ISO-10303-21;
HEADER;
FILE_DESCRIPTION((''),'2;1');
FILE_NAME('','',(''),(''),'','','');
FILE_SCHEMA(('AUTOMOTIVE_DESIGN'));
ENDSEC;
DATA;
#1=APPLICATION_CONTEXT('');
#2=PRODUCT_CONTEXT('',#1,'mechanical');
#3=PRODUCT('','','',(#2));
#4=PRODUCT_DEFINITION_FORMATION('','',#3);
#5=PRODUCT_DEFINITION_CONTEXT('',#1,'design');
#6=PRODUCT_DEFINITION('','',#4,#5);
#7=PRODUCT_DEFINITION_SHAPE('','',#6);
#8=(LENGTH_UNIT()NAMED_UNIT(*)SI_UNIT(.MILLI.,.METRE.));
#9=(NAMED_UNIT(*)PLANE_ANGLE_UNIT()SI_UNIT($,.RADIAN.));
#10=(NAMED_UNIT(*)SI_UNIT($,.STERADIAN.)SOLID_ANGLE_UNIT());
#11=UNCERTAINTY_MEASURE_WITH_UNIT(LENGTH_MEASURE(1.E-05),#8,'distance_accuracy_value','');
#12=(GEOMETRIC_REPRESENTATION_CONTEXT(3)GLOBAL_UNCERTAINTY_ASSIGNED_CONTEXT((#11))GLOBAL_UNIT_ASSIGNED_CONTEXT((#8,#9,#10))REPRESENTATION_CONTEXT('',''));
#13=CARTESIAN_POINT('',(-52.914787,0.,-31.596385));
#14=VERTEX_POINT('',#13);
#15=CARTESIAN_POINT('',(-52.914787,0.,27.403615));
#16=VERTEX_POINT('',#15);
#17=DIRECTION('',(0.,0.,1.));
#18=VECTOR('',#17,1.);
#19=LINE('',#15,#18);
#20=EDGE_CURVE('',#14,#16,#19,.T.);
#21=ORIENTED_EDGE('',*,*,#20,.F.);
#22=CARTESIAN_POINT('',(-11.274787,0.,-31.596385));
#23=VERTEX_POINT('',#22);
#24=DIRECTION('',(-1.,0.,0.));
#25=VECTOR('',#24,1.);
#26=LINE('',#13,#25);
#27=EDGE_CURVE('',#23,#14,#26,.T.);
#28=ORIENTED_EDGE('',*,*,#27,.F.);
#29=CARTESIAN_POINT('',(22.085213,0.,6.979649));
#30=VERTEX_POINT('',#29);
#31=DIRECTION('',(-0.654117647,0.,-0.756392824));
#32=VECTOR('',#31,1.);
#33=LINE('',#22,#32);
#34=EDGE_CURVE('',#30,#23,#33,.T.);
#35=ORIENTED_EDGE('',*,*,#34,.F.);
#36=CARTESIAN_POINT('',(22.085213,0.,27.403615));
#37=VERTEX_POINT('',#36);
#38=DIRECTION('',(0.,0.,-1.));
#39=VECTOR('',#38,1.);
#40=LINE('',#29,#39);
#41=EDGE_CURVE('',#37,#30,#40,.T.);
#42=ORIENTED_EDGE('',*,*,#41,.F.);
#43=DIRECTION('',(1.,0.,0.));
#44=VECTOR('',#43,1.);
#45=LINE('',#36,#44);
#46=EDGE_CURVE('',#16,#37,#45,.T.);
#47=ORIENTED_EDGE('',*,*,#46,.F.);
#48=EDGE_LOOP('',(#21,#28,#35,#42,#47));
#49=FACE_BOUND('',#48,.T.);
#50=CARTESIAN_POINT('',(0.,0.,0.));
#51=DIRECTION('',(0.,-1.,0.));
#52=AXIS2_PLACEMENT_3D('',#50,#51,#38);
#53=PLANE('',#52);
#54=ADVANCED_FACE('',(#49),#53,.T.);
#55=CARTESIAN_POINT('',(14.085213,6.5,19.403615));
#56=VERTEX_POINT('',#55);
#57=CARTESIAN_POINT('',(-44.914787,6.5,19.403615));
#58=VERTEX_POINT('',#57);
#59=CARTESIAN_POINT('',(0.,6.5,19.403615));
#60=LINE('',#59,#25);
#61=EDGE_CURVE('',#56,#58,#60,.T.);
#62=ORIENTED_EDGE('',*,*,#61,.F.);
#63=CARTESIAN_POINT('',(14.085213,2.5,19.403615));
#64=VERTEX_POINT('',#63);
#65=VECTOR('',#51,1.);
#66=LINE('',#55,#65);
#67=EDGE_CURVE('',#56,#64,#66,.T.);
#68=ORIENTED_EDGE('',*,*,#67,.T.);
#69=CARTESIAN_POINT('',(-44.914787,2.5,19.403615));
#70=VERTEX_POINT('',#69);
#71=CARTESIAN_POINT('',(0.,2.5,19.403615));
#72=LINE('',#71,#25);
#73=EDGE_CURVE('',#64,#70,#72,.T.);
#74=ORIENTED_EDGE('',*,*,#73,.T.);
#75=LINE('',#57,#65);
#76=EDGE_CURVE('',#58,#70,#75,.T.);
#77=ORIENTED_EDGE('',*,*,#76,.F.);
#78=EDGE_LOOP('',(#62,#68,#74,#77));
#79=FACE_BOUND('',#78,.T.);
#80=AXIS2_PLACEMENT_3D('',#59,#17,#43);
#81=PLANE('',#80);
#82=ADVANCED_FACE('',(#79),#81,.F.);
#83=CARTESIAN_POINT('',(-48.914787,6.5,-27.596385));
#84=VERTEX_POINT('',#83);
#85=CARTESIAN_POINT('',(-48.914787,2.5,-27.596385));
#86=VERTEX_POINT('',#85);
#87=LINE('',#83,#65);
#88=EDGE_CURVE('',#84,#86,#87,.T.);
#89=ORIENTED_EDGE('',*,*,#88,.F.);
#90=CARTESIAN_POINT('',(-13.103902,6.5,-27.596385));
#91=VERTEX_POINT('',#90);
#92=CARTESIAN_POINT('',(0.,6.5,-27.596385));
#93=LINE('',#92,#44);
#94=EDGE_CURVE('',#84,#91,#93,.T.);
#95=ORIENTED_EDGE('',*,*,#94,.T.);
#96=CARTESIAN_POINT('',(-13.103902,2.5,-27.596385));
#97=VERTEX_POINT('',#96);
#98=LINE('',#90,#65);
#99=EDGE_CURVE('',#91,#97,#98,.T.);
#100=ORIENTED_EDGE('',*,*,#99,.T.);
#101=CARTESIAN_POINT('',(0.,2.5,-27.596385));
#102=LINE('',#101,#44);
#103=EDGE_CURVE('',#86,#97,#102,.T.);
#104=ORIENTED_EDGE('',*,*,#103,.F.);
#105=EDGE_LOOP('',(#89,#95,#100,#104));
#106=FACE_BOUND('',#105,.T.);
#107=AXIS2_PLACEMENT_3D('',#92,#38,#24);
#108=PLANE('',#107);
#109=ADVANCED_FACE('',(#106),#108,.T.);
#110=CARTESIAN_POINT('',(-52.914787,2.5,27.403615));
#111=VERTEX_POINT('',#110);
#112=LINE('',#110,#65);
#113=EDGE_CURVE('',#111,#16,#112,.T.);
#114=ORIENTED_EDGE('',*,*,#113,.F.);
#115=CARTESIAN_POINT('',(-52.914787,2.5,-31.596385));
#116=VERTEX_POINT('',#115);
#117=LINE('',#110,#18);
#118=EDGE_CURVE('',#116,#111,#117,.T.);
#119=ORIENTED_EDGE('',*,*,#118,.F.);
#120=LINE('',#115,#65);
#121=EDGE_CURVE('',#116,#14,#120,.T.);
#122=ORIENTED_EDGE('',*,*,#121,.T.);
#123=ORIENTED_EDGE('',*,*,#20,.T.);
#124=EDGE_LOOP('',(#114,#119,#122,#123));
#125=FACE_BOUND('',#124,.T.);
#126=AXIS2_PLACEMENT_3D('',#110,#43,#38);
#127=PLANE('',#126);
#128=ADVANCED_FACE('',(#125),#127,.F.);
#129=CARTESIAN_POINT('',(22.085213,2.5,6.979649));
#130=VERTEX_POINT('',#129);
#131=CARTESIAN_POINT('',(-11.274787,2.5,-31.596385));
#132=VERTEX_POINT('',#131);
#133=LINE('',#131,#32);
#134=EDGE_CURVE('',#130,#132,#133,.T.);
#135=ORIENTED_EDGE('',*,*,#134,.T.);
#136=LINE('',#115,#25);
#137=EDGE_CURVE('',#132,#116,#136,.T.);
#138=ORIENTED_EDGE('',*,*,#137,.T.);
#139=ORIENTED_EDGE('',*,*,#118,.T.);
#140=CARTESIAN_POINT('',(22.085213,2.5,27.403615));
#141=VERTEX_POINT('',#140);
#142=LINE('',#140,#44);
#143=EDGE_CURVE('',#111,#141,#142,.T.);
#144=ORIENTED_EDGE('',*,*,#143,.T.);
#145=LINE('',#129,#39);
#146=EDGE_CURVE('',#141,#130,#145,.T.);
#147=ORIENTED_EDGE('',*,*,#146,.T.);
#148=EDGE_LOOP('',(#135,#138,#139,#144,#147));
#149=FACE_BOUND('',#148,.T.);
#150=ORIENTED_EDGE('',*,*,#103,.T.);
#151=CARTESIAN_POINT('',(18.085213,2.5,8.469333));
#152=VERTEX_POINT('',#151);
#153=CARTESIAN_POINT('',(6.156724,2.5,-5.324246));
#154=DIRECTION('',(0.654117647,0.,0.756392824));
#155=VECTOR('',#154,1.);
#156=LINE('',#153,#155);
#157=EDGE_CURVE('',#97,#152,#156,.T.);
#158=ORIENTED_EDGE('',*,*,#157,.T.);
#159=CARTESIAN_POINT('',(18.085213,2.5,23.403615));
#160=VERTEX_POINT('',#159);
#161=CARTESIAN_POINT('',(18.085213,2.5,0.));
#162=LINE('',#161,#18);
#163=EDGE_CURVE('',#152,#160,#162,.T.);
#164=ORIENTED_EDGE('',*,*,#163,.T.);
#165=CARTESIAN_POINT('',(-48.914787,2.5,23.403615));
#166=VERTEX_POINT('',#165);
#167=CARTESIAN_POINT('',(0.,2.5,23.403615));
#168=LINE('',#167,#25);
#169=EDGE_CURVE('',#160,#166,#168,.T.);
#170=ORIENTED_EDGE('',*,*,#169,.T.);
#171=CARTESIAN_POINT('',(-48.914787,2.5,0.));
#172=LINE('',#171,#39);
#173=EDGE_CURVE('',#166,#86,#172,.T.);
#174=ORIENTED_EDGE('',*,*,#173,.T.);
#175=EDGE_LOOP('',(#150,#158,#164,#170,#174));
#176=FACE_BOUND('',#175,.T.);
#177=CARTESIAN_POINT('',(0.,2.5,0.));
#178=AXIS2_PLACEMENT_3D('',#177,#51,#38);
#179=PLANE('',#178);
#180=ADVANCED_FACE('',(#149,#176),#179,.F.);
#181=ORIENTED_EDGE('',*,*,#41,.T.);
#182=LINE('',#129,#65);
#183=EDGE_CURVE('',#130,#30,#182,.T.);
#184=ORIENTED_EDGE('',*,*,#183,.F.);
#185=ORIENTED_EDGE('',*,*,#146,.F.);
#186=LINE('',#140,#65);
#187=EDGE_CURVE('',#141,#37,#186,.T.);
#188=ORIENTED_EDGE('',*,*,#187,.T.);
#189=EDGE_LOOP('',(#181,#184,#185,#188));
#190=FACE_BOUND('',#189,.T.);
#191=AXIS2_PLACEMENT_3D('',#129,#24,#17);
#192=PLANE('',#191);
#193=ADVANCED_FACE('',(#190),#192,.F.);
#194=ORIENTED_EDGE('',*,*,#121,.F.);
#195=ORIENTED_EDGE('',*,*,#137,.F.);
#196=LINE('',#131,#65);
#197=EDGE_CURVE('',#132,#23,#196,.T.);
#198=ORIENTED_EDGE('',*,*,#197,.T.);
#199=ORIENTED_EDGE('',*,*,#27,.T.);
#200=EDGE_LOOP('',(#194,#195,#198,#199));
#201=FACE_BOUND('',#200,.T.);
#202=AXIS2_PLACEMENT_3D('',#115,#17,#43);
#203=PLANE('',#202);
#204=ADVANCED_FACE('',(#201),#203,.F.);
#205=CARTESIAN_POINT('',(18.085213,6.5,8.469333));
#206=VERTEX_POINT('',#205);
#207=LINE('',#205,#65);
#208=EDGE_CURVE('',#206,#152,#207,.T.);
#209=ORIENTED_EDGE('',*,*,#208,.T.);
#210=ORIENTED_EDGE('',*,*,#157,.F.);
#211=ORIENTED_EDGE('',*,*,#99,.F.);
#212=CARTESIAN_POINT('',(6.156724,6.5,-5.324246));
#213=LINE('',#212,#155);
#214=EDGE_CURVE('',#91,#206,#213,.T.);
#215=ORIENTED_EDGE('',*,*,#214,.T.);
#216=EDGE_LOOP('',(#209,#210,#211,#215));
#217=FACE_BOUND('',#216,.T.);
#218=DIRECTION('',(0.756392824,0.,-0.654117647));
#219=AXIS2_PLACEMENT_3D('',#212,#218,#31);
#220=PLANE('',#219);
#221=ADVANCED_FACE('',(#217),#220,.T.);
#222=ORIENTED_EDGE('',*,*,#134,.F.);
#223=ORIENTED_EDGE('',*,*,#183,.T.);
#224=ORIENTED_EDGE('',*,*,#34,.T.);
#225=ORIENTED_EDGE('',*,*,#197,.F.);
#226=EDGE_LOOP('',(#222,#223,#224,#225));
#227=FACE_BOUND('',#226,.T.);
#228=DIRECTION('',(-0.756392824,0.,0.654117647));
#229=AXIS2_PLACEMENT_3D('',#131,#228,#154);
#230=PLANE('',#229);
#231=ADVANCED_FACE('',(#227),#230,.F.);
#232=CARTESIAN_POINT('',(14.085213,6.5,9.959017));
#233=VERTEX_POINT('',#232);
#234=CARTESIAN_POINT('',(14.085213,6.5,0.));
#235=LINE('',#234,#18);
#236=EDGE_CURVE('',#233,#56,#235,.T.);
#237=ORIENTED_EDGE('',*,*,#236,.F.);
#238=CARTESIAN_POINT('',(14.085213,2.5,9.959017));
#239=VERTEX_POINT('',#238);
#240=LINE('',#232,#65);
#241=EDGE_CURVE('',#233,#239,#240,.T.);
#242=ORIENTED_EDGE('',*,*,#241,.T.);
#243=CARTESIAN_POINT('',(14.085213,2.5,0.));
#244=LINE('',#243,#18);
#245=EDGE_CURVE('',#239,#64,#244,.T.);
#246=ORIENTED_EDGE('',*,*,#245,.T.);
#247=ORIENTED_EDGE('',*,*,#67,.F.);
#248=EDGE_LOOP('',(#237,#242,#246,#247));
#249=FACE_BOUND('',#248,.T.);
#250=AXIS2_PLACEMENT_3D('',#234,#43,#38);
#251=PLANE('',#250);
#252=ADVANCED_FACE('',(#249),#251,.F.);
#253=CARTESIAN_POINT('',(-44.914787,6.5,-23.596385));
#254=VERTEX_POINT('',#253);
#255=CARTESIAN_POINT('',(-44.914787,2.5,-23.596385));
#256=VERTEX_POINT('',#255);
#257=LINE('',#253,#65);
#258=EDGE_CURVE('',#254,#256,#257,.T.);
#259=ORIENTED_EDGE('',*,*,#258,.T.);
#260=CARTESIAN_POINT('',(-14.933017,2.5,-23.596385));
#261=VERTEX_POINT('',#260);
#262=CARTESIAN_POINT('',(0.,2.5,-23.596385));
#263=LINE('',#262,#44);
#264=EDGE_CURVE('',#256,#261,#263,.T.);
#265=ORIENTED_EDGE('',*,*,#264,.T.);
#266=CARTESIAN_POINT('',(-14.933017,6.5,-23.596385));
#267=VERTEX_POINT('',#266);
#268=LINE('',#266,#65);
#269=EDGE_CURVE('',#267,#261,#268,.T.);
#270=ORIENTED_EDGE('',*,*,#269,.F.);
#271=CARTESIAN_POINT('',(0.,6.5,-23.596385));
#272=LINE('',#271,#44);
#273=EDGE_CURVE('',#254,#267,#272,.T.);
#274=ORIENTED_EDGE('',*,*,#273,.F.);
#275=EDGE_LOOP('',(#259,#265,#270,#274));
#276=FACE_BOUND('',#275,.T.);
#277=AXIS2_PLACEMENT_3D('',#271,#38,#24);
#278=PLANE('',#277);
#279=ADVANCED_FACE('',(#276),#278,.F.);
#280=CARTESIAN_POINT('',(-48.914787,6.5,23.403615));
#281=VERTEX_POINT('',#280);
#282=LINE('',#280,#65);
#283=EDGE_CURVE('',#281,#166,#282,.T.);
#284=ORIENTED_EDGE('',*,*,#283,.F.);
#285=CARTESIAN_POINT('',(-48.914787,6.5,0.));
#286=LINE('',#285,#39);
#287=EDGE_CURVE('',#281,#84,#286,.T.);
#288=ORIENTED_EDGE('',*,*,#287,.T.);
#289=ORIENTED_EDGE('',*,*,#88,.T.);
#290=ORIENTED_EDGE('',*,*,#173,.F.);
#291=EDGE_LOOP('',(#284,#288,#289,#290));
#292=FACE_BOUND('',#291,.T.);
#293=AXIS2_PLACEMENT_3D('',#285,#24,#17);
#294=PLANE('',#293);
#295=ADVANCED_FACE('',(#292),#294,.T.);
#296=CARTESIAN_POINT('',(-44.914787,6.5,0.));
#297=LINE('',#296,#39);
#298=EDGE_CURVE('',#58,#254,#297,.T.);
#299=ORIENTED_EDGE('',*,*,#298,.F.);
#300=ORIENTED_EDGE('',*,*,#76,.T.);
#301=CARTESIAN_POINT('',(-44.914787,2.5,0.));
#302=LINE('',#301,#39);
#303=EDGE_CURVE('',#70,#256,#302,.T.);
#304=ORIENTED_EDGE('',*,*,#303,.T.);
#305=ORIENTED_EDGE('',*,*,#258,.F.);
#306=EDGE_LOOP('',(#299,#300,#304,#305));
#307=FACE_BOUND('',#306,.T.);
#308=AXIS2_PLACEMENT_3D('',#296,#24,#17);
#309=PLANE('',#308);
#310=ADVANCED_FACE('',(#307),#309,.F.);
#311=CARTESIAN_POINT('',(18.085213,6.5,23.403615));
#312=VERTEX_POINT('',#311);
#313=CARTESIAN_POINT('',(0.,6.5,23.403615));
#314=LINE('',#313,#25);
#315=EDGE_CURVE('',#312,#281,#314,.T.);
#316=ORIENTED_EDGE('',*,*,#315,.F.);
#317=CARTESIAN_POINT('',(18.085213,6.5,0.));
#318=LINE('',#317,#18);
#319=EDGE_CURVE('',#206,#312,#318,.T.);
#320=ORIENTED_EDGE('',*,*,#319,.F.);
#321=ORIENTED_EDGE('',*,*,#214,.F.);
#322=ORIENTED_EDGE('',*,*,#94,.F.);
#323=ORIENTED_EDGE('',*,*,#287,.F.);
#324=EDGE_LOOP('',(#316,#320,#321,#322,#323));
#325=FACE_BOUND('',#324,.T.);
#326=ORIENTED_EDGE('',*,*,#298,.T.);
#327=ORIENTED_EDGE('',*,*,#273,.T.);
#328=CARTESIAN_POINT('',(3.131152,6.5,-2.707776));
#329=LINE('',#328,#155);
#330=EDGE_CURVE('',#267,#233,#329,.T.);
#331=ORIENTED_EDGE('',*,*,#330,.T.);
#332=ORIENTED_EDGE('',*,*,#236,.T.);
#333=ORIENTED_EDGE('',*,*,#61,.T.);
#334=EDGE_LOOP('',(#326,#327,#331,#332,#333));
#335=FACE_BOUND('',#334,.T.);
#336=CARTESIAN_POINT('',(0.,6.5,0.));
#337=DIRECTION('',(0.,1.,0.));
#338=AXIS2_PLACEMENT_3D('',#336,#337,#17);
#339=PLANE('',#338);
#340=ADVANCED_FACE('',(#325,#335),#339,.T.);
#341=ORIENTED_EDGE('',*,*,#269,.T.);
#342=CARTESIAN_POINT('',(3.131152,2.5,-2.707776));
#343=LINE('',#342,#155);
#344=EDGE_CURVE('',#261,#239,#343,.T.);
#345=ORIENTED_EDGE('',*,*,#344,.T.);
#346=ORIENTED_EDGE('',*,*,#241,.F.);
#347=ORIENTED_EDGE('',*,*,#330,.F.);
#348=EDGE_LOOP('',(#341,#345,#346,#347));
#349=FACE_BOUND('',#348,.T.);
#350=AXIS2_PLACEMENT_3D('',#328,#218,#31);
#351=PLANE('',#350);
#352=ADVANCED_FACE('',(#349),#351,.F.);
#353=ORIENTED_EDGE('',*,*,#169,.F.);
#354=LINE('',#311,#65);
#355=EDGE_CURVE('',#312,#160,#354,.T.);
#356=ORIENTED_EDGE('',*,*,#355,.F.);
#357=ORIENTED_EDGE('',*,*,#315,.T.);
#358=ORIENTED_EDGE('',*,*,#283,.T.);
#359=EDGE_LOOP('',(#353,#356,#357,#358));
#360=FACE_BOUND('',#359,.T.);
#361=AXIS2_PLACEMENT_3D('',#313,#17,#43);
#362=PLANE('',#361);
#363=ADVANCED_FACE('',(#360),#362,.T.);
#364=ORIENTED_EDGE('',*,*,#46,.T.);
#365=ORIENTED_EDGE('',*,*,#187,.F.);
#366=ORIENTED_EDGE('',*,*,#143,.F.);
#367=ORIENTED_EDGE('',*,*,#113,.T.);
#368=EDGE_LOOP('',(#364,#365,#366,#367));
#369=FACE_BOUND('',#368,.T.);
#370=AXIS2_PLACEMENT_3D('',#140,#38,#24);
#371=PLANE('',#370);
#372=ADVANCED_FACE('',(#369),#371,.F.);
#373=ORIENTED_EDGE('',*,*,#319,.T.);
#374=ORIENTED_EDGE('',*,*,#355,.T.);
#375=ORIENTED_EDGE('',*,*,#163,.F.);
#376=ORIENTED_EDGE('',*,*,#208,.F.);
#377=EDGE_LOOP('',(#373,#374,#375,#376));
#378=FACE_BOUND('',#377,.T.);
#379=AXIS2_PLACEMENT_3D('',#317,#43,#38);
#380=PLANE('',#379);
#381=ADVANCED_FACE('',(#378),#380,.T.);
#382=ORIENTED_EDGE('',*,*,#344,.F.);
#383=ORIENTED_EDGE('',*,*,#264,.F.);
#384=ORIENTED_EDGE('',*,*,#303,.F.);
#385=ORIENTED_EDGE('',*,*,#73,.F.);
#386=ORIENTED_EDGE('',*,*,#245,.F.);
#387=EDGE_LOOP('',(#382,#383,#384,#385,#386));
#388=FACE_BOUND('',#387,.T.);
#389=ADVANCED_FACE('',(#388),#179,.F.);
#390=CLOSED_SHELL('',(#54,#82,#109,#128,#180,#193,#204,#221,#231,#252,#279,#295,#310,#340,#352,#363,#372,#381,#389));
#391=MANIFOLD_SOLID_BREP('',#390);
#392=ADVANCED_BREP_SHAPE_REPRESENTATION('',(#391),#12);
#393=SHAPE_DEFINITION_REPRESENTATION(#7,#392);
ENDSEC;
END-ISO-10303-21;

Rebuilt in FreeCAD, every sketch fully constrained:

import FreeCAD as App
import Part
import Sketcher
from FreeCAD import Vector


def add_polygon(sketch, points):
    """Adds a closed chain of lines whose ends are joined by coincident constraints."""
    first, n = sketch.GeometryCount, len(points)
    for a, b in zip(points, points[1:] + points[:1]):
        sketch.addGeometry(Part.LineSegment(App.Vector(*a, 0), App.Vector(*b, 0)), False)
    for i in range(n):
        sketch.addConstraint(Sketcher.Constraint("Coincident", first + i, 2, first + (i + 1) % n, 1))

doc = App.newDocument("Part")
body = doc.addObject("PartDesign::Body", "Body")

# Sketch on XZ plane
sketch1 = body.newObject("Sketcher::SketchObject", "Sketch")
sketch1.AttachmentSupport = (doc.getObject("XZ_Plane"), [""])
sketch1.MapMode = "FlatFace"
add_polygon(sketch1, [(-11, -32), (-53, -32), (-53, 27), (22, 27), (22, 7)])  # lines 0-4
sketch1.addConstraint([
    Sketcher.Constraint("Horizontal", 0),
    Sketcher.Constraint("Vertical", 1),
    Sketcher.Constraint("Horizontal", 2),
    Sketcher.Constraint("Vertical", 3),
    Sketcher.Constraint("DistanceX", 2, 1, 2, 2, 75.0),
    Sketcher.Constraint("DistanceY", 1, 1, 1, 2, 59.0),
    Sketcher.Constraint("Distance", 4, 51.0),
    Sketcher.Constraint("DistanceX", 0, 2, 0, 1, 41.64),
    Sketcher.Constraint("DistanceY", -1, 1, 3, 2, 6.979649),
    Sketcher.Constraint("DistanceX", 0, 2, -1, 1, 52.914787),
])
pad1 = body.newObject("PartDesign::Pad", "Pad")
pad1.Profile = sketch1
pad1.Length = 2.5
pad1.Reversed = True

# Sketch on XZ plane
sketch2 = body.newObject("Sketcher::SketchObject", "Sketch001")
sketch2.AttachmentSupport = (doc.getObject("XZ_Plane"), [""])
sketch2.MapMode = "FlatFace"
sketch2.AttachmentOffset = App.Placement(Vector(0, 0, -2.5), App.Rotation())
add_polygon(sketch2, [(-49, 23), (18, 23), (18, 8), (-13, -28), (-49, -28)])  # lines 0-4
add_polygon(sketch2, [(14, 19), (-45, 19), (-45, -24), (-15, -24), (14, 10)])  # lines 5-9
sketch2.addConstraint([
    Sketcher.Constraint("Horizontal", 0),
    Sketcher.Constraint("Vertical", 1),
    Sketcher.Constraint("Horizontal", 3),
    Sketcher.Constraint("Vertical", 4),
    Sketcher.Constraint("Horizontal", 5),
    Sketcher.Constraint("Vertical", 6),
    Sketcher.Constraint("Horizontal", 7),
    Sketcher.Constraint("Vertical", 9),
    Sketcher.Constraint("Parallel", 2, 8),
    Sketcher.Constraint("DistanceX", 0, 1, 0, 2, 67.0),
    Sketcher.Constraint("DistanceX", 5, 2, 5, 1, 59.0),
    Sketcher.Constraint("DistanceY", 4, 1, 4, 2, 51.0),
    Sketcher.Constraint("DistanceY", 6, 2, 6, 1, 43.0),
    Sketcher.Constraint("DistanceX", 4, 2, 5, 2, 4.0),
    Sketcher.Constraint("DistanceY", 5, 2, 4, 2, 4.0),
    Sketcher.Constraint("Distance", 2, 47.681201),
    Sketcher.Constraint("Distance", 8, 44.362402),
    Sketcher.Constraint("DistanceX", 7, 1, 7, 2, 29.98177),
    Sketcher.Constraint("DistanceX", 2, 2, -1, 1, 13.103902),
    Sketcher.Constraint("DistanceY", -1, 1, 0, 2, 23.403615),
])
pad2 = body.newObject("PartDesign::Pad", "Pad001")
pad2.Profile = sketch2
pad2.Length = 4
pad2.Reversed = True

doc.recompute()
